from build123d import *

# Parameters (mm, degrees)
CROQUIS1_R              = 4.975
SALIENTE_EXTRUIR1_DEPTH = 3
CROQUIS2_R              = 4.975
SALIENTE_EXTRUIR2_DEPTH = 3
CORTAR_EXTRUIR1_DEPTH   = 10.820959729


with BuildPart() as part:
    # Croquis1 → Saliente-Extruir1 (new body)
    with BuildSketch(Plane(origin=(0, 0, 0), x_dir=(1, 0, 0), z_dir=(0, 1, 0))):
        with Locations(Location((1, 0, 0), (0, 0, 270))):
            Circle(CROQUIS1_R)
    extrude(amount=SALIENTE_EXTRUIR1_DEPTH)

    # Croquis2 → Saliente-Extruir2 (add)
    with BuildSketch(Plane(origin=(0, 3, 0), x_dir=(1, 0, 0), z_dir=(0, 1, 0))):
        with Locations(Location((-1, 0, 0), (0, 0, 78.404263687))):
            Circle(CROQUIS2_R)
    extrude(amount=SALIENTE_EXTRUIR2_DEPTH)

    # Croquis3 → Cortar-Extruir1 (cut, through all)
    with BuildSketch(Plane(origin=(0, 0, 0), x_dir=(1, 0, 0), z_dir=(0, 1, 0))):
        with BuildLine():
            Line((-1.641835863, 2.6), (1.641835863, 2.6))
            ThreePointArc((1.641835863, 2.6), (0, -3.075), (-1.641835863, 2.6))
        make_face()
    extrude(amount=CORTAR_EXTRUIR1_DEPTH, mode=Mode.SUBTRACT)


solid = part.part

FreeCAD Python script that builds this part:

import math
import FreeCAD as App
import Part
import Sketcher
from FreeCAD import Vector
Q = App.Units.Quantity

doc = App.newDocument("Part")
params = doc.addObject("Spreadsheet::Sheet", "Params")
for row, (alias, value) in enumerate([
    ("sketch1_diameter", "9.95 mm"),
    ("pad1_length", "3 mm"),
    ("sketch2_diameter", "9.95 mm"),
    ("pad2_length", "3 mm"),
], start=1):
    params.set(f"A{row}", alias)
    params.set(f"B{row}", "=" + value)
    params.setAlias(f"B{row}", alias)

body = doc.addObject("PartDesign::Body", "Body")

# Sketch on XZ plane
sketch1 = body.newObject("Sketcher::SketchObject", "Sketch")
sketch1.AttachmentSupport = (doc.getObject("XZ_Plane"), [""])
sketch1.MapMode = "FlatFace"
sketch1.addGeometry(Part.Circle(Vector(1, 0, 0), Vector(0, 0, 1), 5), False)
sketch1.addConstraint([
    Sketcher.Constraint("PointOnObject", 0, 3, -1),
    Sketcher.Constraint("Diameter", 0, Q("9.95 mm")),
    Sketcher.Constraint("DistanceX", -1, 1, 0, 3, Q("1 mm")),
])
sketch1.setExpression("Constraints[1]", "Params.sketch1_diameter")
pad1 = body.newObject("PartDesign::Pad", "Pad")
pad1.Profile = sketch1
pad1.setExpression("Length", "Params.pad1_length")
pad1.Reversed = True

# Sketch on XZ plane
sketch2 = body.newObject("Sketcher::SketchObject", "Sketch001")
sketch2.AttachmentSupport = (doc.getObject("XZ_Plane"), [""])
sketch2.MapMode = "FlatFace"
sketch2.AttachmentOffset = App.Placement(Vector(0, 0, -3), App.Rotation())
sketch2.addGeometry(Part.Circle(Vector(-1, 0, 0), Vector(0, 0, 1), 5), False)
sketch2.addConstraint([
    Sketcher.Constraint("PointOnObject", 0, 3, -1),
    Sketcher.Constraint("Diameter", 0, Q("9.95 mm")),
    Sketcher.Constraint("DistanceX", 0, 3, -1, 1, Q("1 mm")),
])
sketch2.setExpression("Constraints[1]", "Params.sketch2_diameter")
pad2 = body.newObject("PartDesign::Pad", "Pad001")
pad2.Profile = sketch2
pad2.setExpression("Length", "Params.pad2_length")
pad2.Reversed = True

# Sketch on XZ plane
sketch3 = body.newObject("Sketcher::SketchObject", "Sketch002")
sketch3.AttachmentSupport = (doc.getObject("XZ_Plane"), [""])
sketch3.MapMode = "FlatFace"
sketch3.addGeometry([
    Part.LineSegment(Vector(1.6, -2.6, 0), Vector(-1.6, -2.6, 0)),
    Part.ArcOfCircle(Part.Circle(Vector(0, 0, 0), Vector(0, 0, 1), 3.1), math.radians(-58), math.radians(238)),
], False)
sketch3.addConstraint([
    Sketcher.Constraint("Coincident", 0, 1, 1, 1),
    Sketcher.Constraint("Coincident", 1, 2, 0, 2),
    Sketcher.Constraint("Horizontal", 0),
    Sketcher.Constraint("Coincident", 1, 3, -1, 1),
    Sketcher.Constraint("Radius", 1, Q("3.075 mm")),
    Sketcher.Constraint("DistanceY", 0, 1, -1, 1, Q("2.6 mm")),
])
pocket1 = body.newObject("PartDesign::Pocket", "Pocket")
pocket1.Profile = sketch3
pocket1.Type = "ThroughAll"

doc.recompute()
